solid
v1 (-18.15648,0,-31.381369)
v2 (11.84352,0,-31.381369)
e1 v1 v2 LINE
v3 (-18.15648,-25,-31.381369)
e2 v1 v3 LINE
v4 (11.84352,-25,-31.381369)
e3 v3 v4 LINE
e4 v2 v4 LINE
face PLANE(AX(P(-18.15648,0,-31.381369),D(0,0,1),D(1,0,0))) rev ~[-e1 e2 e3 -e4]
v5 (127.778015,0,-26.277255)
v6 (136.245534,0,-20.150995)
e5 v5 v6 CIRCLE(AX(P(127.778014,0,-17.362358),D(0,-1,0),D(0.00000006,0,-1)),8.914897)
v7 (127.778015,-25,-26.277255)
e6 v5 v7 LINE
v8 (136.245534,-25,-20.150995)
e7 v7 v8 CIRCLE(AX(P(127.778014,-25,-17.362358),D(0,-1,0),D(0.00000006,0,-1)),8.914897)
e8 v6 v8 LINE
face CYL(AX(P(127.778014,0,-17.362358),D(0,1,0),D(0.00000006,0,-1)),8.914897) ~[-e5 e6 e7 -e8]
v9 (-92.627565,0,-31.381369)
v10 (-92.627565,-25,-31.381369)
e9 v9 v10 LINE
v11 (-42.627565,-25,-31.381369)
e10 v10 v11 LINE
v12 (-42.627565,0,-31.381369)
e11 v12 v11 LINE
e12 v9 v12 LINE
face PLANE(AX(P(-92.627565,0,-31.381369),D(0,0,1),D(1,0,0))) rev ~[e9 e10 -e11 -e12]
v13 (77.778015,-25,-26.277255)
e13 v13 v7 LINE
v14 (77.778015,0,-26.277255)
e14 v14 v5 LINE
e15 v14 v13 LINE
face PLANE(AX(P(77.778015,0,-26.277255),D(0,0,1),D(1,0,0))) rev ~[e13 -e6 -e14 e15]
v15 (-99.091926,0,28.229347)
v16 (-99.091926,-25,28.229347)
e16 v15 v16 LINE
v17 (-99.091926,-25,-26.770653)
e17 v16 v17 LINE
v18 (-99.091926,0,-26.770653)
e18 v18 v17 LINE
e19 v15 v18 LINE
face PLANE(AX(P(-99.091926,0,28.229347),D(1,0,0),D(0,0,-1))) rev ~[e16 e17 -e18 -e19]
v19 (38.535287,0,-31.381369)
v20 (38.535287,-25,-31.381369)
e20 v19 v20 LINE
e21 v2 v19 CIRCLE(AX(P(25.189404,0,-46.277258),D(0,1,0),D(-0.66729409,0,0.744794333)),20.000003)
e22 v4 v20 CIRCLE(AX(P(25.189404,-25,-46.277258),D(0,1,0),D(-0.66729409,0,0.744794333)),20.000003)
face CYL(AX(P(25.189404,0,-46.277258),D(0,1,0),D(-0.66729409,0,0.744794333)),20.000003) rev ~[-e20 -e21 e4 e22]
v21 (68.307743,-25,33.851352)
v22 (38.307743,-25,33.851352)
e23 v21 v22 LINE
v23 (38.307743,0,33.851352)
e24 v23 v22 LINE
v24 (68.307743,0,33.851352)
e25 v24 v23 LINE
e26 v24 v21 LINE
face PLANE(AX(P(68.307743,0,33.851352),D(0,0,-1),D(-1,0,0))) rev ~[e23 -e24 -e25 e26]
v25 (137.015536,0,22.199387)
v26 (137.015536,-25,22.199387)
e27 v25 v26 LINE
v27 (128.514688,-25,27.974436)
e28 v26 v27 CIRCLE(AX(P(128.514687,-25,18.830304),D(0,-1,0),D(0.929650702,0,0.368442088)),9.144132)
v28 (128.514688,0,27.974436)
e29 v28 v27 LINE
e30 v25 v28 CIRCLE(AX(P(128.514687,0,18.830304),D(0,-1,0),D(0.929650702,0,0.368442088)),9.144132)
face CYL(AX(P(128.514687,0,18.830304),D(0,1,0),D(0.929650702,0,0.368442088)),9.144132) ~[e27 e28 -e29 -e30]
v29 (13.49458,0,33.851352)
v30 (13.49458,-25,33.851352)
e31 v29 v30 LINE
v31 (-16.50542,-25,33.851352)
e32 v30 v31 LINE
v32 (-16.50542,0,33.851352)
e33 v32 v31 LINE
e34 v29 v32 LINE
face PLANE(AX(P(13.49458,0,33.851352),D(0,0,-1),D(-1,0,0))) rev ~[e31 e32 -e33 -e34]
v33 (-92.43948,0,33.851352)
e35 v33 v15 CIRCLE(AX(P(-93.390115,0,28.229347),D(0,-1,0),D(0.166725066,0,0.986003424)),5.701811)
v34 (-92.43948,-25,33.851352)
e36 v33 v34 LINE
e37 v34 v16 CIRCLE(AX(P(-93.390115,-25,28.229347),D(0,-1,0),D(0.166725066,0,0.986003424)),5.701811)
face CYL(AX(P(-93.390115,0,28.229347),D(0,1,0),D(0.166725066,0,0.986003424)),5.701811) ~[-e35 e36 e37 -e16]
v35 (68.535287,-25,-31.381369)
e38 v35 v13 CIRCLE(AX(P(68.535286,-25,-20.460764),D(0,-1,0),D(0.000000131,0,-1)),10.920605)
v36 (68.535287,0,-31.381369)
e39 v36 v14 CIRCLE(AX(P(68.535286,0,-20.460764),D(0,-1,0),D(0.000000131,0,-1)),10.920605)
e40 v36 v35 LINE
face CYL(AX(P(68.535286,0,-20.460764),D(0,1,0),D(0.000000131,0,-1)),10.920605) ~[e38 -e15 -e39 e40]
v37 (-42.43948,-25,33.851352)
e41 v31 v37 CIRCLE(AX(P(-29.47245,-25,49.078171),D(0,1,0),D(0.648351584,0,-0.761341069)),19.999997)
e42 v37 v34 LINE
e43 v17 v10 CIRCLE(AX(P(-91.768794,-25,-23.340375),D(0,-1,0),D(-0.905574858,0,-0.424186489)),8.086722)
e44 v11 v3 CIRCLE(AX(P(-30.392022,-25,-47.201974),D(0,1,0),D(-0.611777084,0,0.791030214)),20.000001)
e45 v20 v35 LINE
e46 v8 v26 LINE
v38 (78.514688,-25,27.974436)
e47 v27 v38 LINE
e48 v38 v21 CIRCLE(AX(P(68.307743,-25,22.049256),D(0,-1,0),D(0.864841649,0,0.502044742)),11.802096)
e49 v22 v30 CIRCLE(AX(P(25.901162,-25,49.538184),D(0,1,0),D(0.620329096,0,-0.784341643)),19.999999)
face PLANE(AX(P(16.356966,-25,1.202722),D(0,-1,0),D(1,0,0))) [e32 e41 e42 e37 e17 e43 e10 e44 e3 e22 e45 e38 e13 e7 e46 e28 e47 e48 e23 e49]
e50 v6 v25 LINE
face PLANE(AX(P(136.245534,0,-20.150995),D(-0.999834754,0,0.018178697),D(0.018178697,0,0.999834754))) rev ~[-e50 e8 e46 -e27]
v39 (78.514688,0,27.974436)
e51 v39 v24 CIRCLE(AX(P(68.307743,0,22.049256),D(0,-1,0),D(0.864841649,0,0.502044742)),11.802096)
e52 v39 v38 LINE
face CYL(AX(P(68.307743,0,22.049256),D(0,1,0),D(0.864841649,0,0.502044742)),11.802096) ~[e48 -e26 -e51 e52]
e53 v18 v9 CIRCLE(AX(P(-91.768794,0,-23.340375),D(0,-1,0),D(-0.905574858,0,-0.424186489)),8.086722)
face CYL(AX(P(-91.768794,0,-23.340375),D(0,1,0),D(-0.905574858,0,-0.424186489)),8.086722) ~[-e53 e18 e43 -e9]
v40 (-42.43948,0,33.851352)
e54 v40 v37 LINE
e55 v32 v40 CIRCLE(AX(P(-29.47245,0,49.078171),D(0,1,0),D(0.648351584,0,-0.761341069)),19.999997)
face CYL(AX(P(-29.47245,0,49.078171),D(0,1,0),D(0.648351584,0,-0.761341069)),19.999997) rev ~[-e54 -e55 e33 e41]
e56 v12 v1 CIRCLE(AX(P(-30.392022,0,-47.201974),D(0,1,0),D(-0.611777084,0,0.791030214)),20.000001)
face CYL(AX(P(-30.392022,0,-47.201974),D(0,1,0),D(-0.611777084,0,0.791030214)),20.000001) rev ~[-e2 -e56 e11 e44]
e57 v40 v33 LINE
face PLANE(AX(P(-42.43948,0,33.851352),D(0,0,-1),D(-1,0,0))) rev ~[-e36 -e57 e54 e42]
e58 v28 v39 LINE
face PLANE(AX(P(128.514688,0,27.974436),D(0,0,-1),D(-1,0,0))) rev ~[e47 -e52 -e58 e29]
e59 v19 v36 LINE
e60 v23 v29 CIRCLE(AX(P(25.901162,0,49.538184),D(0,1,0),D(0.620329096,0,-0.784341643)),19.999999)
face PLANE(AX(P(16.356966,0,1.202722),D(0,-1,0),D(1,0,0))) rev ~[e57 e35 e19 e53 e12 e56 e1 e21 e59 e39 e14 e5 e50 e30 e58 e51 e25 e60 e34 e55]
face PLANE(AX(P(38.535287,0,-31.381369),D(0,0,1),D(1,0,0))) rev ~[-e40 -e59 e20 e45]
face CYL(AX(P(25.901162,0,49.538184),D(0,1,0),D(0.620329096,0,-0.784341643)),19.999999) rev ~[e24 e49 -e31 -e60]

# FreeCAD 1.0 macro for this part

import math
import FreeCAD as App
import Part
import Sketcher
from FreeCAD import Vector

doc = App.newDocument("Part")
body = doc.addObject("PartDesign::Body", "Body")

# Sketch on XZ plane
sketch1 = body.newObject("Sketcher::SketchObject", "Sketch")
sketch1.AttachmentSupport = (doc.getObject("XZ_Plane"), [""])
sketch1.MapMode = "FlatFace"
sketch1.addGeometry(Part.ArcOfCircle(Part.Circle(Vector(-93, 28, 0), Vector(0, 0, 1), 6), math.radians(80), math.radians(180)), False)
sketch1.addGeometry(Part.LineSegment(Vector(-99, 28, 0), Vector(-99, -27, 0)), False)
sketch1.addGeometry(Part.ArcOfCircle(Part.Circle(Vector(-92, -23, 0), Vector(0, 0, 1), 8), math.radians(-155), math.radians(-96)), False)
sketch1.addGeometry(Part.LineSegment(Vector(-93, -31, 0), Vector(-43, -31, 0)), False)
sketch1.addGeometry(Part.ArcOfCircle(Part.Circle(Vector(-30, -47, 0), Vector(0, 0, 1), 20), math.radians(52), math.radians(128)), False)
sketch1.addGeometry(Part.LineSegment(Vector(-18, -31, 0), Vector(12, -31, 0)), False)
sketch1.addGeometry(Part.ArcOfCircle(Part.Circle(Vector(25, -46, 0), Vector(0, 0, 1), 20), math.radians(48), math.radians(132)), False)
sketch1.addGeometry(Part.LineSegment(Vector(39, -31, 0), Vector(69, -31, 0)), False)
sketch1.addGeometry(Part.ArcOfCircle(Part.Circle(Vector(69, -20, 0), Vector(0, 0, 1), 11), math.radians(-90), math.radians(-32)), False)
sketch1.addGeometry(Part.LineSegment(Vector(78, -26, 0), Vector(128, -26, 0)), False)
sketch1.addGeometry(Part.ArcOfCircle(Part.Circle(Vector(128, -17, 0), Vector(0, 0, 1), 9), math.radians(-90), math.radians(-18)), False)
sketch1.addGeometry(Part.LineSegment(Vector(136, -20, 0), Vector(137, 22, 0)), False)
sketch1.addGeometry(Part.ArcOfCircle(Part.Circle(Vector(129, 19, 0), Vector(0, 0, 1), 9), math.radians(22), math.radians(90)), False)
sketch1.addGeometry(Part.LineSegment(Vector(129, 28, 0), Vector(79, 28, 0)), False)
sketch1.addGeometry(Part.ArcOfCircle(Part.Circle(Vector(68, 22, 0), Vector(0, 0, 1), 12), math.radians(30), math.radians(90)), False)
sketch1.addGeometry(Part.LineSegment(Vector(68, 34, 0), Vector(38, 34, 0)), False)
sketch1.addGeometry(Part.ArcOfCircle(Part.Circle(Vector(26, 50, 0), Vector(0, 0, 1), 20), math.radians(-128), math.radians(-52)), False)
sketch1.addGeometry(Part.LineSegment(Vector(13, 34, 0), Vector(-17, 34, 0)), False)
sketch1.addGeometry(Part.ArcOfCircle(Part.Circle(Vector(-29, 49, 0), Vector(0, 0, 1), 20), math.radians(-130), math.radians(-50)), False)
sketch1.addGeometry(Part.LineSegment(Vector(-42, 34, 0), Vector(-92, 34, 0)), False)
sketch1.addConstraint(Sketcher.Constraint("Tangent", 0, 2, 1, 1))
sketch1.addConstraint(Sketcher.Constraint("Coincident", 1, 2, 2, 1))
sketch1.addConstraint(Sketcher.Constraint("Coincident", 2, 2, 3, 1))
sketch1.addConstraint(Sketcher.Constraint("Coincident", 3, 2, 4, 2))
sketch1.addConstraint(Sketcher.Constraint("Coincident", 4, 1, 5, 1))
sketch1.addConstraint(Sketcher.Constraint("Coincident", 5, 2, 6, 2))
sketch1.addConstraint(Sketcher.Constraint("Coincident", 6, 1, 7, 1))
sketch1.addConstraint(Sketcher.Constraint("Tangent", 7, 2, 8, 1))
sketch1.addConstraint(Sketcher.Constraint("Coincident", 8, 2, 9, 1))
sketch1.addConstraint(Sketcher.Constraint("Tangent", 9, 2, 10, 1))
sketch1.addConstraint(Sketcher.Constraint("Coincident", 10, 2, 11, 1))
sketch1.addConstraint(Sketcher.Constraint("Coincident", 11, 2, 12, 1))
sketch1.addConstraint(Sketcher.Constraint("Tangent", 12, 2, 13, 1))
sketch1.addConstraint(Sketcher.Constraint("Coincident", 13, 2, 14, 1))
sketch1.addConstraint(Sketcher.Constraint("Tangent", 14, 2, 15, 1))
sketch1.addConstraint(Sketcher.Constraint("Coincident", 15, 2, 16, 2))
sketch1.addConstraint(Sketcher.Constraint("Coincident", 16, 1, 17, 1))
sketch1.addConstraint(Sketcher.Constraint("Coincident", 17, 2, 18, 2))
sketch1.addConstraint(Sketcher.Constraint("Coincident", 18, 1, 19, 1))
sketch1.addConstraint(Sketcher.Constraint("Coincident", 19, 2, 0, 1))
sketch1.addConstraint(Sketcher.Constraint("Vertical", 1))
sketch1.addConstraint(Sketcher.Constraint("Horizontal", 3))
sketch1.addConstraint(Sketcher.Constraint("Horizontal", 5))
sketch1.addConstraint(Sketcher.Constraint("Horizontal", 7))
sketch1.addConstraint(Sketcher.Constraint("Horizontal", 9))
sketch1.addConstraint(Sketcher.Constraint("Horizontal", 13))
sketch1.addConstraint(Sketcher.Constraint("Horizontal", 15))
sketch1.addConstraint(Sketcher.Constraint("Horizontal", 17))
sketch1.addConstraint(Sketcher.Constraint("Horizontal", 19))
sketch1.addConstraint(Sketcher.Constraint("Equal", 4, 6))
sketch1.addConstraint(Sketcher.Constraint("Equal", 16, 18))
sketch1.addConstraint(Sketcher.Constraint("Horizontal", 3, 2, 4, 1))
sketch1.addConstraint(Sketcher.Constraint("Horizontal", 5, 2, 6, 1))
sketch1.addConstraint(Sketcher.Constraint("Horizontal", 15, 2, 16, 1))
sketch1.addConstraint(Sketcher.Constraint("Horizontal", 17, 2, 18, 1))
sketch1.addConstraint(Sketcher.Constraint("Equal", 5, 7))
sketch1.addConstraint(Sketcher.Constraint("Equal", 3, 9))
sketch1.addConstraint(Sketcher.Constraint("Equal", 9, 13))
sketch1.addConstraint(Sketcher.Constraint("Equal", 7, 15))
sketch1.addConstraint(Sketcher.Constraint("Equal", 15, 17))
sketch1.addConstraint(Sketcher.Constraint("Equal", 13, 19))
sketch1.addConstraint(Sketcher.Constraint("Radius", 4, 20.000001))
sketch1.addConstraint(Sketcher.Constraint("Radius", 16, 19.999999))
sketch1.addConstraint(Sketcher.Constraint("DistanceX", 3, 1, 3, 2, 50.0))
sketch1.addConstraint(Sketcher.Constraint("DistanceX", 5, 1, 5, 2, 30.0))
sketch1.addConstraint(Sketcher.Constraint("DistanceY", 1, 2, 1, 1, 55.0))
sketch1.addConstraint(Sketcher.Constraint("Radius", 0, 5.701811))
sketch1.addConstraint(Sketcher.Constraint("DistanceX", 10, 2, 11, 2, 0.770002))
sketch1.addConstraint(Sketcher.Constraint("Radius", 2, 8.086722))
sketch1.addConstraint(Sketcher.Constraint("Radius", 8, 10.920605))
sketch1.addConstraint(Sketcher.Constraint("Radius", 10, 8.914897))
sketch1.addConstraint(Sketcher.Constraint("Radius", 12, 9.144132))
sketch1.addConstraint(Sketcher.Constraint("Radius", 14, 11.802096))
sketch1.addConstraint(Sketcher.Constraint("DistanceY", 4, 3, 2, 3, 23.8616))
sketch1.addConstraint(Sketcher.Constraint("DistanceX", 0, 3, 8, 3, 161.9254))
sketch1.addConstraint(Sketcher.Constraint("DistanceY", 6, 3, 10, 3, 28.914899))
sketch1.addConstraint(Sketcher.Constraint("DistanceX", 8, 3, 12, 3, 59.979402))
sketch1.addConstraint(Sketcher.Constraint("DistanceY", 10, 2, 12, 3, 38.981299))
sketch1.addConstraint(Sketcher.Constraint("DistanceY", 8, 3, 13, 2, 48.4352))
sketch1.addConstraint(Sketcher.Constraint("Distance", 11, 42.357381))
sketch1.addConstraint(Sketcher.Constraint("DistanceY", 10, 3, -1, 1, 17.362358))
sketch1.addConstraint(Sketcher.Constraint("DistanceX", -1, 1, 16, 3, 25.901162))
sketch1.addConstraint(Sketcher.Constraint("DistanceX", 18, 3, -1, 1, 29.47245))
sketch1.addConstraint(Sketcher.Constraint("DistanceY", -1, 1, 18, 3, 49.078171))
sketch1.addConstraint(Sketcher.Constraint("DistanceX", 4, 1, -1, 1, 18.15648))
pad1 = body.newObject("PartDesign::Pad", "Pad")
pad1.Profile = sketch1
pad1.Length = 25

doc.recompute()
